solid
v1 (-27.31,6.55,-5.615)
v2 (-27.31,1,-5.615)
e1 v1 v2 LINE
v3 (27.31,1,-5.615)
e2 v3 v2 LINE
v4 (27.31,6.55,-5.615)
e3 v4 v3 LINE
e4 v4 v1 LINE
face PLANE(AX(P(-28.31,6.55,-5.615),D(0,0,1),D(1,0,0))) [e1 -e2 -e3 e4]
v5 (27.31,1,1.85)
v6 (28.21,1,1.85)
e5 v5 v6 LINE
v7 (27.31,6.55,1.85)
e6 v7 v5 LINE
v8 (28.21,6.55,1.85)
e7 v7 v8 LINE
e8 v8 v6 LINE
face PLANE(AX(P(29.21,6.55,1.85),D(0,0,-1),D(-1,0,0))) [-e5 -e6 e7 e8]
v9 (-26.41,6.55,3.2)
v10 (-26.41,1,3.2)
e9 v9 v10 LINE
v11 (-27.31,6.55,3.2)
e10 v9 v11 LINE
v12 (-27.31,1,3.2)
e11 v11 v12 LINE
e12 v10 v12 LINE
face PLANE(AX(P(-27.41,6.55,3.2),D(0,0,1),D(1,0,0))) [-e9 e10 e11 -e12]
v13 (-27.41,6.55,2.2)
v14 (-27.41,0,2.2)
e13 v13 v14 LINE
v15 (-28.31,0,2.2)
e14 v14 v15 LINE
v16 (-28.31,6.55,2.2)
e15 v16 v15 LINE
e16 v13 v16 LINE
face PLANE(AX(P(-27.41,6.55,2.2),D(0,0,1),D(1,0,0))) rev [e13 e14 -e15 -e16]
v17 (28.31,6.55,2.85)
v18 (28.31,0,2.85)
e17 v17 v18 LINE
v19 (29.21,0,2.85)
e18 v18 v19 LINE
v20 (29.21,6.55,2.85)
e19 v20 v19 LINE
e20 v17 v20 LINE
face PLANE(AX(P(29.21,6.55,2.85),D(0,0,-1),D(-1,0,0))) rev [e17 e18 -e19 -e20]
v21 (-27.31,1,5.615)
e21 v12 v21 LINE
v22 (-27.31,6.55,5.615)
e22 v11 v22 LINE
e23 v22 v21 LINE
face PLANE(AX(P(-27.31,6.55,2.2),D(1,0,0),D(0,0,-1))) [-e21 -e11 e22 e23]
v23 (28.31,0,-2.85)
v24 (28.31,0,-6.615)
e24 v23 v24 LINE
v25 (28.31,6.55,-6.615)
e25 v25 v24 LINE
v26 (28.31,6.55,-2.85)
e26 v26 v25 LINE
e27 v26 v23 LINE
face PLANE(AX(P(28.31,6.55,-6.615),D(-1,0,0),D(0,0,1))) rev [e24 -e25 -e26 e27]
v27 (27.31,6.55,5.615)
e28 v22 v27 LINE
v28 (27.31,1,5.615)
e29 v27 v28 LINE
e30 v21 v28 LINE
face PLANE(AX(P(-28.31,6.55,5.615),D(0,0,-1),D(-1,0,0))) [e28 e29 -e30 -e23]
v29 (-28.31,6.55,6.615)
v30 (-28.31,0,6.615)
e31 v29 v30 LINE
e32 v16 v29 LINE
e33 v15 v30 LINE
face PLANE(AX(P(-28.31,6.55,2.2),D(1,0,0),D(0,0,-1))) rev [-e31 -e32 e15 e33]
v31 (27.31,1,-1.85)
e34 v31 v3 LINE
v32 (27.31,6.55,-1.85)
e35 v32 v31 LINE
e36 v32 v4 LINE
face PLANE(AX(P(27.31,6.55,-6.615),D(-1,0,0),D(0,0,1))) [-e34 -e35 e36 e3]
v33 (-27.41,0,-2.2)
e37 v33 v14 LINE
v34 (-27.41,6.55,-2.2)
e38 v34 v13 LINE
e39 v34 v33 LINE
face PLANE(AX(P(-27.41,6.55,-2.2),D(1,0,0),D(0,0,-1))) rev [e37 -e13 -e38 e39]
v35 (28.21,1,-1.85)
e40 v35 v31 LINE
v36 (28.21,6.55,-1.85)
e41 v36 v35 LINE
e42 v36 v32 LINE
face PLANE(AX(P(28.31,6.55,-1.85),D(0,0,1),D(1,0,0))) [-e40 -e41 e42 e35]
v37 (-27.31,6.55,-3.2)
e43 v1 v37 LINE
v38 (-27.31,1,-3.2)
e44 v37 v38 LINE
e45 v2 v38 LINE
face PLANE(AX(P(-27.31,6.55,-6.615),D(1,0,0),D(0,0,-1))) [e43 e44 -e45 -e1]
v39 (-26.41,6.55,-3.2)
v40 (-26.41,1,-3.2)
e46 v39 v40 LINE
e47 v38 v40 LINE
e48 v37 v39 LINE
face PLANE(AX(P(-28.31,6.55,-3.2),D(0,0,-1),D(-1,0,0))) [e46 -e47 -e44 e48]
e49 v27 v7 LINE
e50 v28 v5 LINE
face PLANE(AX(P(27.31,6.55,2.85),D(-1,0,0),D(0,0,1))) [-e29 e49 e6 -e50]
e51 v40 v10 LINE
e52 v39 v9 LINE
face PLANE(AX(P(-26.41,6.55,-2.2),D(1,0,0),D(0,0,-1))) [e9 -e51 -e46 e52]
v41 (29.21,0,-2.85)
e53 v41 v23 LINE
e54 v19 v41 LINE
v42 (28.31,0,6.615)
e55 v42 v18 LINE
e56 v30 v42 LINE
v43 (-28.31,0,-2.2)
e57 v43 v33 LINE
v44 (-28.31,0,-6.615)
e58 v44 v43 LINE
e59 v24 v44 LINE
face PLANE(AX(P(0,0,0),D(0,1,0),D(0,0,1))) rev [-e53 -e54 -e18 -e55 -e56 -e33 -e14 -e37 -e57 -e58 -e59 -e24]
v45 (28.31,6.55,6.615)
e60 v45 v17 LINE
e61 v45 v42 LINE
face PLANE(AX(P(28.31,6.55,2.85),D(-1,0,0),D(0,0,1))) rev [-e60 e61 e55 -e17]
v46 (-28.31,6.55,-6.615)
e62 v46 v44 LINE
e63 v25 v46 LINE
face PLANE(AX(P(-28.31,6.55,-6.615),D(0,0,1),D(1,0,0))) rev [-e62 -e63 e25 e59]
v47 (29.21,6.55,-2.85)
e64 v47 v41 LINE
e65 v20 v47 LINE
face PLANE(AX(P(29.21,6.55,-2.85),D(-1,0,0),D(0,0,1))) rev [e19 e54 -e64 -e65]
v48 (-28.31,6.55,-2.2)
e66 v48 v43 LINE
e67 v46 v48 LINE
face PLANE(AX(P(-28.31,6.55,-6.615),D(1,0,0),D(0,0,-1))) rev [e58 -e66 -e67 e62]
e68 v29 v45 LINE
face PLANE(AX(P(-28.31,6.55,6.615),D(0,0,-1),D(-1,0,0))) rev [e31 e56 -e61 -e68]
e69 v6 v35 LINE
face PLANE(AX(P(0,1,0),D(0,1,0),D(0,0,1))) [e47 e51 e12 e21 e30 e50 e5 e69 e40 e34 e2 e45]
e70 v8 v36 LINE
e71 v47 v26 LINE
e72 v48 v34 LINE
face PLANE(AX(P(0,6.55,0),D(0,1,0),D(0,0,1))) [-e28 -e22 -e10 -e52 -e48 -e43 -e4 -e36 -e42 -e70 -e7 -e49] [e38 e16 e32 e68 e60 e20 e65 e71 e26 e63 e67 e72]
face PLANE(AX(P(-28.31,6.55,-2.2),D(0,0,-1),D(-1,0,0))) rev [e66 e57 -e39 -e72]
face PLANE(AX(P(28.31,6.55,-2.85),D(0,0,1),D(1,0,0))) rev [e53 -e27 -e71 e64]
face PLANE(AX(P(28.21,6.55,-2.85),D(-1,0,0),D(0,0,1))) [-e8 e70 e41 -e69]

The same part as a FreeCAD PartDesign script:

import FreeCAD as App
import Part
import Sketcher

V = App.Vector


def faces_at(feature, points):
    """Names of the faces that lie closest to the given points."""
    faces = feature.Shape.Faces
    near = lambda p: min(range(len(faces)), key=lambda i: faces[i].distToShape(Part.Vertex(*p))[0])
    return sorted({f"Face{near(p) + 1}" for p in points})

doc = App.newDocument("Part")
params = doc.addObject("Spreadsheet::Sheet", "Params")
for row, (alias, value) in enumerate([
    ("sketch1_width", "0.9 mm"),
    ("sketch1_height", "4.4 mm"),
    ("sketch1_height2", "5.7 mm"),
    ("sketch1_width2", "56.62 mm"),
    ("pad1_length", "6.55 mm"),
    ("thickness_wall", "1 mm"),
], start=1):
    params.set(f"A{row}", alias)
    params.set(f"B{row}", "=" + value)
    params.setAlias(f"B{row}", alias)

body = doc.addObject("PartDesign::Body", "Body")

# Sketch on XZ plane
sketch1 = body.newObject("Sketcher::SketchObject", "Sketch")
sketch1.AttachmentSupport = (doc.getObject("XZ_Plane"), [""])
sketch1.MapMode = "FlatFace"
sketch1.addGeometry([
    Part.LineSegment(V(28.31, -2.85, 0), V(28.31, -6.615, 0)),  # 0
    Part.LineSegment(V(28.31, -6.615, 0), V(-28.31, -6.615, 0)),  # 1
    Part.LineSegment(V(-28.31, -6.615, 0), V(-28.31, -2.2, 0)),  # 2
    Part.LineSegment(V(-28.31, -2.2, 0), V(-27.41, -2.2, 0)),  # 3
    Part.LineSegment(V(-27.41, -2.2, 0), V(-27.41, 2.2, 0)),  # 4
    Part.LineSegment(V(-27.41, 2.2, 0), V(-28.31, 2.2, 0)),  # 5
    Part.LineSegment(V(-28.31, 2.2, 0), V(-28.31, 6.615, 0)),  # 6
    Part.LineSegment(V(-28.31, 6.615, 0), V(28.31, 6.615, 0)),  # 7
    Part.LineSegment(V(28.31, 6.615, 0), V(28.31, 2.85, 0)),  # 8
    Part.LineSegment(V(28.31, 2.85, 0), V(29.21, 2.85, 0)),  # 9
    Part.LineSegment(V(29.21, 2.85, 0), V(29.21, -2.85, 0)),  # 10
    Part.LineSegment(V(29.21, -2.85, 0), V(28.31, -2.85, 0)),  # 11
], False)
sketch1.addConstraint([
    Sketcher.Constraint("Coincident", 0, 2, 1, 1),
    Sketcher.Constraint("Coincident", 1, 2, 2, 1),
    Sketcher.Constraint("Coincident", 2, 2, 3, 1),
    Sketcher.Constraint("Coincident", 3, 2, 4, 1),
    Sketcher.Constraint("Coincident", 4, 2, 5, 1),
    Sketcher.Constraint("Coincident", 5, 2, 6, 1),
    Sketcher.Constraint("Coincident", 6, 2, 7, 1),
    Sketcher.Constraint("Coincident", 7, 2, 8, 1),
    Sketcher.Constraint("Coincident", 8, 2, 9, 1),
    Sketcher.Constraint("Coincident", 9, 2, 10, 1),
    Sketcher.Constraint("Coincident", 10, 2, 11, 1),
    Sketcher.Constraint("Coincident", 11, 2, 0, 1),
    Sketcher.Constraint("Vertical", 0),
    Sketcher.Constraint("Horizontal", 1),
    Sketcher.Constraint("Vertical", 2),
    Sketcher.Constraint("Horizontal", 3),
    Sketcher.Constraint("Vertical", 4),
    Sketcher.Constraint("Horizontal", 5),
    Sketcher.Constraint("Vertical", 6),
    Sketcher.Constraint("Horizontal", 7),
    Sketcher.Constraint("Vertical", 8),
    Sketcher.Constraint("Horizontal", 9),
    Sketcher.Constraint("Vertical", 10),
    Sketcher.Constraint("Horizontal", 11),
    Sketcher.Constraint("Symmetric", 0, 2, 6, 2, -1, 1),
    Sketcher.Constraint("Symmetric", 2, 2, 5, 2, -1),
    Sketcher.Constraint("Symmetric", 8, 2, 11, 2, -1),
    Sketcher.Constraint("Equal", 5, 9),
    Sketcher.Constraint("DistanceX", 3, 1, 3, 2, 0.9),
    Sketcher.Constraint("DistanceY", 4, 1, 4, 2, 4.4),
    Sketcher.Constraint("DistanceY", 10, 2, 10, 1, 5.7),
    Sketcher.Constraint("DistanceX", 1, 2, 1, 1, 56.62),
    Sketcher.Constraint("DistanceY", 0, 2, 0, 1, 3.765),
])
sketch1.setExpression("Constraints[28]", "Params.sketch1_width")
sketch1.setExpression("Constraints[29]", "Params.sketch1_height")
sketch1.setExpression("Constraints[30]", "Params.sketch1_height2")
sketch1.setExpression("Constraints[31]", "Params.sketch1_width2")
pad1 = body.newObject("PartDesign::Pad", "Pad")
pad1.Profile = sketch1
pad1.setExpression("Length", "Params.pad1_length")
pad1.Reversed = True
doc.recompute()

thickness = body.newObject("PartDesign::Thickness", "Thickness")
thickness.Base = (pad1, faces_at(pad1, [(0.45, 6.55, 0)]))
thickness.setExpression("Value", "Params.thickness_wall")
thickness.Reversed = True
thickness.Join = "Intersection"

doc.recompute()
